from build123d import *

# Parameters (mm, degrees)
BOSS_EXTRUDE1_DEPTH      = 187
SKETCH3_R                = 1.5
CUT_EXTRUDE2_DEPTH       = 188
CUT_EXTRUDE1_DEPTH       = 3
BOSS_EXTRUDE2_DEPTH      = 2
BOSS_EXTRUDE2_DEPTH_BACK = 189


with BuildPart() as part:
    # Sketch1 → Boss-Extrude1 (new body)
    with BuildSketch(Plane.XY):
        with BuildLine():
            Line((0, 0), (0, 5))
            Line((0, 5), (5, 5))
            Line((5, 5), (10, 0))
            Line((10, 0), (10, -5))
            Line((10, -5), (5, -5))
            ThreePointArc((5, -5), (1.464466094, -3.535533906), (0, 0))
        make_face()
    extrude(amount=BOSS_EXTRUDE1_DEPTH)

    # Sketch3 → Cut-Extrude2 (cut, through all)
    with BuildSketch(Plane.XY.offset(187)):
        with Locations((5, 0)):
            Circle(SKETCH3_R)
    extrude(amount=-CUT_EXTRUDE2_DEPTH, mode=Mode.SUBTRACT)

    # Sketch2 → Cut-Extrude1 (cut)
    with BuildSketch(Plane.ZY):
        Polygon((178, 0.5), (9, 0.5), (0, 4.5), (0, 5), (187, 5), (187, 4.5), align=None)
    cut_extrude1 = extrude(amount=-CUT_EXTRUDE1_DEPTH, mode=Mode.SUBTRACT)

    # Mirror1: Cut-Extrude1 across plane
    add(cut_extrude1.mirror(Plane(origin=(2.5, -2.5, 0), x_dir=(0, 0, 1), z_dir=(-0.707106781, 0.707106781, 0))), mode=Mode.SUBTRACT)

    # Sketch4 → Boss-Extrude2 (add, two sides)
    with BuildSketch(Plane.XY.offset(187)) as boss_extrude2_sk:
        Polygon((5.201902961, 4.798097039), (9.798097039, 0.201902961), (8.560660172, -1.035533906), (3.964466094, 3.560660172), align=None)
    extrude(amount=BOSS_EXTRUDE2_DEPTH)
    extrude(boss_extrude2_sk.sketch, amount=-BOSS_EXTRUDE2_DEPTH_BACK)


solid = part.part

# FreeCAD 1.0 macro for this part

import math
import FreeCAD as App
import Part
import Sketcher

V = App.Vector
Q = App.Units.Quantity


def add_polygon(sketch, points):
    """Adds a closed chain of lines whose ends are joined by coincident constraints."""
    first, n = sketch.GeometryCount, len(points)
    for a, b in zip(points, points[1:] + points[:1]):
        sketch.addGeometry(Part.LineSegment(App.Vector(*a, 0), App.Vector(*b, 0)), False)
    for i in range(n):
        sketch.addConstraint(Sketcher.Constraint("Coincident", first + i, 2, first + (i + 1) % n, 1))

doc = App.newDocument("Part")
body = doc.addObject("PartDesign::Body", "Body")

# Sketch on XY plane
sketch1 = body.newObject("Sketcher::SketchObject", "Sketch")
sketch1.AttachmentSupport = (doc.getObject("XY_Plane"), [""])
sketch1.MapMode = "FlatFace"
sketch1.addGeometry([
    Part.LineSegment(V(0, 5, 0), V(0, 0, 0)),  # 0
    Part.ArcOfCircle(Part.Circle(V(5, 0, 0), V(0, 0, 1), 5), math.radians(180), math.radians(270)),  # 1
    Part.LineSegment(V(5, -5, 0), V(10, -5, 0)),  # 2
    Part.LineSegment(V(10, -5, 0), V(10, 0, 0)),  # 3
    Part.LineSegment(V(10, 0, 0), V(5, 5, 0)),  # 4
    Part.LineSegment(V(5, 5, 0), V(0, 5, 0)),  # 5
], False)
sketch1.addConstraint([
    Sketcher.Constraint("Tangent", 0, 2, 1, 1),
    Sketcher.Constraint("Tangent", 1, 2, 2, 1),
    Sketcher.Constraint("Coincident", 2, 2, 3, 1),
    Sketcher.Constraint("Coincident", 3, 2, 4, 1),
    Sketcher.Constraint("Coincident", 4, 2, 5, 1),
    Sketcher.Constraint("Coincident", 5, 2, 0, 1),
    Sketcher.Constraint("Vertical", 0),
    Sketcher.Constraint("Horizontal", 2),
    Sketcher.Constraint("Vertical", 3),
    Sketcher.Constraint("Horizontal", 5),
    Sketcher.Constraint("Coincident", 0, 2, -1, 1),
    Sketcher.Constraint("Symmetric", 1, 2, 4, 2, -1),
    Sketcher.Constraint("PointOnObject", 3, 2, -1),
    Sketcher.Constraint("Equal", 2, 5),
    Sketcher.Constraint("Radius", 1, 5.0),
])
pad1 = body.newObject("PartDesign::Pad", "Pad")
pad1.Profile = sketch1
pad1.Length = 187

# Sketch on XY plane
sketch2 = body.newObject("Sketcher::SketchObject", "Sketch001")
sketch2.AttachmentSupport = (doc.getObject("XY_Plane"), [""])
sketch2.MapMode = "FlatFace"
sketch2.AttachmentOffset = App.Placement(V(0, 0, 187), App.Rotation())
sketch2.addGeometry(Part.Circle(V(5, 0, 0), V(0, 0, 1), 1.5), False)
sketch2.addConstraint([
    Sketcher.Constraint("PointOnObject", 0, 3, -1),
    Sketcher.Constraint("Diameter", 0, 3.0),
    Sketcher.Constraint("DistanceX", -1, 1, 0, 3, 5.0),
])
pocket1 = body.newObject("PartDesign::Pocket", "Pocket")
pocket1.Profile = sketch2
pocket1.Type = "ThroughAll"

# Sketch on YZ plane
sketch3 = body.newObject("Sketcher::SketchObject", "Sketch002")
sketch3.AttachmentSupport = (doc.getObject("YZ_Plane"), [""])
sketch3.MapMode = "FlatFace"
add_polygon(sketch3, [(0.5, 9), (0.5, 178), (4.5, 187), (5, 187), (5, 0), (4.5, 0)])  # lines 0-5
sketch3.addConstraint([
    Sketcher.Constraint("Vertical", 0),
    Sketcher.Constraint("Horizontal", 2),
    Sketcher.Constraint("Vertical", 3),
    Sketcher.Constraint("Horizontal", 4),
    Sketcher.Constraint("PointOnObject", 3, 2, -1),
    Sketcher.Constraint("Vertical", 1, 2, 4, 2),
    Sketcher.Constraint("Equal", 1, 5),
    Sketcher.Constraint("DistanceY", 0, 1, 0, 2, 169.0),
    Sketcher.Constraint("DistanceY", 3, 2, 3, 1, 187.0),
    Sketcher.Constraint("DistanceX", 2, 1, 2, 2, 0.5),
    Sketcher.Constraint("DistanceX", -1, 1, 2, 2, 5.0),
    Sketcher.Constraint("DistanceX", 0, 2, 1, 2, 4.0),
])
pocket2 = body.newObject("PartDesign::Pocket", "Pocket001")
pocket2.Profile = sketch3
pocket2.Length = 3
pocket2.Reversed = True
doc.recompute()

datumplane = body.newObject("PartDesign::Plane", "DatumPlane")
datumplane.Placement = App.Placement(V(2.5, -2.5, 0), App.Rotation(V(0.707106781, 0.707106781, 0), V(0, 0, -1), V(-0.707106781, 0.707106781, 0), "ZXY"))
mirrored = body.newObject("PartDesign::Mirrored", "Mirrored")
mirrored.Originals = [pocket2]
mirrored.MirrorPlane = (datumplane, [""])
body.Tip = mirrored

# Sketch on XY plane
sketch4 = body.newObject("Sketcher::SketchObject", "Sketch003")
sketch4.AttachmentSupport = (doc.getObject("XY_Plane"), [""])
sketch4.MapMode = "FlatFace"
sketch4.AttachmentOffset = App.Placement(V(0, 0, 187), App.Rotation())
add_polygon(sketch4, [(9.798097, 0.201903), (5.201903, 4.798097), (3.964466, 3.56066), (8.56066, -1.035534)])  # lines 0-3
sketch4.addConstraint([
    Sketcher.Constraint("Perpendicular", 0, 1),
    Sketcher.Constraint("Perpendicular", 1, 2),
    Sketcher.Constraint("Perpendicular", 2, 3),
    Sketcher.Constraint("Angle", 0, Q("135 deg")),
    Sketcher.Constraint("Distance", 0, 6.5),
    Sketcher.Constraint("Distance", 1, 1.75),
    Sketcher.Constraint("DistanceY", -1, 1, 1, 2, 3.56066),
    Sketcher.Constraint("DistanceX", -1, 1, 2, 2, 8.56066),
])
pad2 = body.newObject("PartDesign::Pad", "Pad001")
pad2.Profile = sketch4
pad2.Type = "TwoLengths"
pad2.Length = 2
pad2.Length2 = 189

doc.recompute()
